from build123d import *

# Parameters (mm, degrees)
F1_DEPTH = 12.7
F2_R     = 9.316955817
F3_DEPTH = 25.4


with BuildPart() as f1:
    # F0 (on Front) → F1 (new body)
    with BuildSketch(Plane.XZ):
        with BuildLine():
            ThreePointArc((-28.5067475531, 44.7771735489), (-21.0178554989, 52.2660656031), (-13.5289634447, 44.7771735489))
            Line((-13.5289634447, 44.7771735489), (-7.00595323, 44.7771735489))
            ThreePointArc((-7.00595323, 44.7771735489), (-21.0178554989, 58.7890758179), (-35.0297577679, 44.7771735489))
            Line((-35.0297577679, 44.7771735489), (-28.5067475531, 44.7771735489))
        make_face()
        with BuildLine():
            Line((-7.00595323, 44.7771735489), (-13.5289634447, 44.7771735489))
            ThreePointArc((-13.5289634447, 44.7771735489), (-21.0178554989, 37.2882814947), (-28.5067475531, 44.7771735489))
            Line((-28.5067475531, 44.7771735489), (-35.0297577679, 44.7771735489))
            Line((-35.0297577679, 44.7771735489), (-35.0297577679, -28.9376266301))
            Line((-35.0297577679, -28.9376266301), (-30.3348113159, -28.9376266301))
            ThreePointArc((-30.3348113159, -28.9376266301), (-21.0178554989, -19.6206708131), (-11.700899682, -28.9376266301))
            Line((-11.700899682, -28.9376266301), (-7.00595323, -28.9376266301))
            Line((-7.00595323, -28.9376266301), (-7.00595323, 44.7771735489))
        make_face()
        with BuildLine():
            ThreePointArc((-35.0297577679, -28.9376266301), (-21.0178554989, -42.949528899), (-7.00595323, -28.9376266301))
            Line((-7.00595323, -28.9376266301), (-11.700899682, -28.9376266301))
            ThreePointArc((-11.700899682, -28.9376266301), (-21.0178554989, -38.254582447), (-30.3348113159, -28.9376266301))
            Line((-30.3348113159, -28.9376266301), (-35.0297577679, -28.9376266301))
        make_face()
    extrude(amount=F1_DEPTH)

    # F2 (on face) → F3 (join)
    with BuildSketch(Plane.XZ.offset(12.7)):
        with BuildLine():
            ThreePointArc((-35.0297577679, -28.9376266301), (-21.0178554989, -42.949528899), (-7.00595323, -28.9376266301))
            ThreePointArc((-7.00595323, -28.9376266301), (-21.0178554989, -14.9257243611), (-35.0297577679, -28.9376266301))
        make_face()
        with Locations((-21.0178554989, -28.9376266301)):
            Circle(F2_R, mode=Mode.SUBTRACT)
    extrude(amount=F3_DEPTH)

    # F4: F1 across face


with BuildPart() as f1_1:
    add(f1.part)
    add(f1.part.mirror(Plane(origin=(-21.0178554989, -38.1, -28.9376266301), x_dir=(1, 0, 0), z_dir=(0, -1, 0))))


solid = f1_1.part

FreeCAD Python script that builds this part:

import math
import FreeCAD as App
import Part
import Sketcher

V = App.Vector
Q = App.Units.Quantity

doc = App.newDocument("Part")
body = doc.addObject("PartDesign::Body", "Body")

# Sketch on XZ plane
sketch1 = body.newObject("Sketcher::SketchObject", "Sketch")
sketch1.AttachmentSupport = (doc.getObject("XZ_Plane"), [""])
sketch1.MapMode = "FlatFace"
sketch1.addGeometry([
    Part.ArcOfCircle(Part.Circle(V(-21, 45, 0), V(0, 0, 1), 14), math.radians(0), math.radians(180)),  # 0
    Part.LineSegment(V(-35, 45, 0), V(-35, -29, 0)),  # 1
    Part.ArcOfCircle(Part.Circle(V(-21, -29, 0), V(0, 0, 1), 14), math.radians(180), math.radians(360)),  # 2
    Part.LineSegment(V(-7, -29, 0), V(-7, 45, 0)),  # 3
    Part.Circle(V(-21, 45, 0), V(0, 0, 1), 7),  # 4
    Part.Circle(V(-21, -29, 0), V(0, 0, 1), 9),  # 5
], False)
sketch1.addConstraint([
    Sketcher.Constraint("Tangent", 0, 2, 1, 1),
    Sketcher.Constraint("Tangent", 1, 2, 2, 1),
    Sketcher.Constraint("Tangent", 2, 2, 3, 1),
    Sketcher.Constraint("Tangent", 3, 2, 0, 1),
    Sketcher.Constraint("Vertical", 1),
    Sketcher.Constraint("Vertical", 3),
    Sketcher.Constraint("Coincident", 4, 3, 0, 3),
    Sketcher.Constraint("Coincident", 5, 3, 2, 3),
    Sketcher.Constraint("Diameter", 5, Q("18.633912 mm")),
    Sketcher.Constraint("Diameter", 4, Q("14.977784 mm")),
    Sketcher.Constraint("DistanceY", 1, 2, 1, 1, Q("73.7148 mm")),
    Sketcher.Constraint("Radius", 0, Q("14.011902 mm")),
    Sketcher.Constraint("DistanceX", 0, 3, -1, 1, Q("21.017855 mm")),
    Sketcher.Constraint("DistanceY", -1, 1, 0, 3, Q("44.777174 mm")),
])
pad1 = body.newObject("PartDesign::Pad", "Pad")
pad1.Profile = sketch1
pad1.Length = Q("0.5 in")

# Sketch on XZ plane
sketch2 = body.newObject("Sketcher::SketchObject", "Sketch001")
sketch2.AttachmentSupport = (doc.getObject("XZ_Plane"), [""])
sketch2.MapMode = "FlatFace"
sketch2.AttachmentOffset = App.Placement(V(0, 0, 0.5 * 25.4), App.Rotation())
sketch2.addGeometry([
    Part.Circle(V(-21, -29, 0), V(0, 0, 1), 14),
    Part.Circle(V(-21, -29, 0), V(0, 0, 1), 9),
], False)
sketch2.addConstraint([
    Sketcher.Constraint("Coincident", 1, 3, 0, 3),
    Sketcher.Constraint("Diameter", 1, Q("18.633912 mm")),
    Sketcher.Constraint("Diameter", 0, Q("28.023805 mm")),
    Sketcher.Constraint("DistanceX", 0, 3, -1, 1, Q("21.017855 mm")),
    Sketcher.Constraint("DistanceY", 0, 3, -1, 1, Q("28.937627 mm")),
])
pad2 = body.newObject("PartDesign::Pad", "Pad001")
pad2.Profile = sketch2
pad2.Length = Q("1 in")
body2 = doc.addObject("PartDesign::Body", "Body001")
doc.recompute()

body2.BaseFeature = body
doc.recompute()

mirroring = doc.addObject("Part::Mirroring", "Mirroring")
mirroring.Source = body
mirroring.Base = V(-21.017855, -38.1, -28.937627)
mirroring.Normal = V(0, -1, 0)
body3 = doc.addObject("PartDesign::Body", "Body002")
body3.BaseFeature = mirroring
boolean = body2.newObject("PartDesign::Boolean", "Boolean")
boolean.Type = "Fuse"
boolean.addObjects([body3])
doc.recompute()
mirroring.Visibility = False

doc.recompute()
